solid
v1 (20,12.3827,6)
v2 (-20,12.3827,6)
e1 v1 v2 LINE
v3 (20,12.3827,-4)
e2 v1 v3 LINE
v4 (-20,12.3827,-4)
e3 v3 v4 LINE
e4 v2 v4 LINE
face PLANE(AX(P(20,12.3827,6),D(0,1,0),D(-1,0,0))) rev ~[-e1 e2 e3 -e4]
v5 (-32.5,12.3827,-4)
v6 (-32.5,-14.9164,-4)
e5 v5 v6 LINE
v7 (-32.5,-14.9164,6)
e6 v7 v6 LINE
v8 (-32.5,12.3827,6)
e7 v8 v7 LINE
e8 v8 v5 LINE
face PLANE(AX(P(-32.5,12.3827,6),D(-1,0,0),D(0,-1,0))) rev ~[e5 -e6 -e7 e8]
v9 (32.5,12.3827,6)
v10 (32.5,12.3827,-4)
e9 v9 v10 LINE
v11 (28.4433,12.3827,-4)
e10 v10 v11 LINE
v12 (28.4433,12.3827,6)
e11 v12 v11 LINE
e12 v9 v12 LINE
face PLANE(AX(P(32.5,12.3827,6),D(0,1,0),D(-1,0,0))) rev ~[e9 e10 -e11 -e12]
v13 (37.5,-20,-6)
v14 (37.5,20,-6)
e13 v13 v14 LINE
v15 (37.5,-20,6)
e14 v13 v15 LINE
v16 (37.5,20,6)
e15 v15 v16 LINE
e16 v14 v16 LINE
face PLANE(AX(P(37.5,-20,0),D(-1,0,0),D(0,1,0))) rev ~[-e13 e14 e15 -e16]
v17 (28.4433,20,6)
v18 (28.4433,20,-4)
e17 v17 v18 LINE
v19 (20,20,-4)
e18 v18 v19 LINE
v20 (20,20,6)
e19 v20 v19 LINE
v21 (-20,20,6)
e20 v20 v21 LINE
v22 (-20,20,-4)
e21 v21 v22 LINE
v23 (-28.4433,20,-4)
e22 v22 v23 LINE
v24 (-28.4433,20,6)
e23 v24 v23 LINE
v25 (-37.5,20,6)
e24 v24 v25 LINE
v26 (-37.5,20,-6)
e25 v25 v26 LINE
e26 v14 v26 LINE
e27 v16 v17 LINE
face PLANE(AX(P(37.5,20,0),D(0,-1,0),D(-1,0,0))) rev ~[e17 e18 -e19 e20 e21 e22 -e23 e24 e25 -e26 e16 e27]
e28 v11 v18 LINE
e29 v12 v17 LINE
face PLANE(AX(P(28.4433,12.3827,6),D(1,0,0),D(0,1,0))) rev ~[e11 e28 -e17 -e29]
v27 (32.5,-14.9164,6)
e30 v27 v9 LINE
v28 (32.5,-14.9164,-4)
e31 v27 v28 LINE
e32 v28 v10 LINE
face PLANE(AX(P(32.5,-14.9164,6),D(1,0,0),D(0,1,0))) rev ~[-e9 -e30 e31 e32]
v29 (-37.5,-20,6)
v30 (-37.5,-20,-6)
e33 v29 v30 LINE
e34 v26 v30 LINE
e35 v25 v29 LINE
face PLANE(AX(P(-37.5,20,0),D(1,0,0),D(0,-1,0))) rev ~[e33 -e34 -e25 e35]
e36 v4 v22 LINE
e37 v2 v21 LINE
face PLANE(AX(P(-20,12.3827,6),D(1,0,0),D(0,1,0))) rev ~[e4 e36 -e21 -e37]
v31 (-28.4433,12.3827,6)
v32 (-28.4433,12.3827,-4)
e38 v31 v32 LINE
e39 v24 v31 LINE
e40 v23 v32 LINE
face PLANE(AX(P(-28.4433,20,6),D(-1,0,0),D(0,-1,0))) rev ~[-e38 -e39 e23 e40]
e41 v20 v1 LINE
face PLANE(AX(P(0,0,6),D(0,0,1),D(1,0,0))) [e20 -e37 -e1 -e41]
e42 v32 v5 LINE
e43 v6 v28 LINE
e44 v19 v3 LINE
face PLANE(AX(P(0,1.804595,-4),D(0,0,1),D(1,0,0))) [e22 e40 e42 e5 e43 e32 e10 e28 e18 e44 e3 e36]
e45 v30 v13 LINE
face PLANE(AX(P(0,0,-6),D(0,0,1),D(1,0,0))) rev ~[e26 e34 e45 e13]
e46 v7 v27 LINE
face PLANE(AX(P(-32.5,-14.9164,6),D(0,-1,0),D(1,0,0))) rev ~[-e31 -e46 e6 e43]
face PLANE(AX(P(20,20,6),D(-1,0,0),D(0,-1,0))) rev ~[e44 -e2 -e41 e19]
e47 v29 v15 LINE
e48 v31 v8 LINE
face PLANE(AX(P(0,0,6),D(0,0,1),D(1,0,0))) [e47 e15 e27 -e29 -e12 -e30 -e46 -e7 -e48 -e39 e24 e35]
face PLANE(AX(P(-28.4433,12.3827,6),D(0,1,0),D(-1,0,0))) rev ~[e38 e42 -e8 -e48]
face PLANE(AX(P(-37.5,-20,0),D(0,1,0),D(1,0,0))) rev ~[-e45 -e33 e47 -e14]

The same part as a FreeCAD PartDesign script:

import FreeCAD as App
import Part
import Sketcher

V = App.Vector


def add_polygon(sketch, points):
    """Adds a closed chain of lines whose ends are joined by coincident constraints."""
    first, n = sketch.GeometryCount, len(points)
    for a, b in zip(points, points[1:] + points[:1]):
        sketch.addGeometry(Part.LineSegment(App.Vector(*a, 0), App.Vector(*b, 0)), False)
    for i in range(n):
        sketch.addConstraint(Sketcher.Constraint("Coincident", first + i, 2, first + (i + 1) % n, 1))

doc = App.newDocument("Part")
body = doc.addObject("PartDesign::Body", "Body")

sketch1 = body.newObject("Sketcher::SketchObject", "Sketch")
sketch1.AttachmentSupport = (doc.getObject("XY_Plane"), [""])
sketch1.MapMode = "FlatFace"
add_polygon(sketch1, [(-38, 20), (-38, -20), (38, -20), (38, 20)])
sketch1.addConstraint([
    Sketcher.Constraint("Vertical", 0),
    Sketcher.Constraint("Horizontal", 1),
    Sketcher.Constraint("Vertical", 2),
    Sketcher.Constraint("Horizontal", 3),
    Sketcher.Constraint("Symmetric", 0, 2, 2, 2, -1, 1),
    Sketcher.Constraint("DistanceX", 0, 2, -1, 1, 37.5),
    Sketcher.Constraint("DistanceY", 0, 2, 0, 1, 40.0),
])
pad1 = body.newObject("PartDesign::Pad", "Pad")
pad1.Profile = sketch1
pad1.Length = 12
pad1.Midplane = True

sketch2 = body.newObject("Sketcher::SketchObject", "Sketch001")
sketch2.AttachmentSupport = (doc.getObject("XY_Plane"), [""])
sketch2.MapMode = "FlatFace"
sketch2.AttachmentOffset = App.Placement(V(0, 0, 6), App.Rotation())
add_polygon(sketch2, [(-28.4, 12.4), (-32.5, 12.4), (-32.5, -14.9), (32.5, -14.9), (32.5, 12.4), (28.4, 12.4), (28.4, 20), (20, 20), (20, 12.4), (-20, 12.4), (-20, 20), (-28.4, 20)])
sketch2.addConstraint([
    Sketcher.Constraint("Horizontal", 0),
    Sketcher.Constraint("Vertical", 1),
    Sketcher.Constraint("Horizontal", 2),
    Sketcher.Constraint("Vertical", 3),
    Sketcher.Constraint("Horizontal", 4),
    Sketcher.Constraint("Vertical", 5),
    Sketcher.Constraint("Horizontal", 6),
    Sketcher.Constraint("Vertical", 7),
    Sketcher.Constraint("Horizontal", 8),
    Sketcher.Constraint("Vertical", 9),
    Sketcher.Constraint("Horizontal", 10),
    Sketcher.Constraint("Vertical", 11),
    Sketcher.Constraint("Symmetric", 0, 2, 3, 2, -2),
    Sketcher.Constraint("Symmetric", 6, 2, 9, 2, -2),
    Sketcher.Constraint("Horizontal", 4, 2, 7, 2),
    Sketcher.Constraint("Equal", 0, 4),
    Sketcher.Constraint("DistanceY", -1, 1, 5, 2, 20.0),
    Sketcher.Constraint("DistanceX", -1, 1, 6, 2, 20.0),
    Sketcher.Constraint("DistanceX", 2, 1, 2, 2, 65.0),
    Sketcher.Constraint("DistanceY", 1, 2, 1, 1, 27.299),
    Sketcher.Constraint("DistanceX", 0, 2, 0, 1, 4.0567),
    Sketcher.Constraint("DistanceY", 5, 1, 5, 2, 7.6173),
])
pocket1 = body.newObject("PartDesign::Pocket", "Pocket")
pocket1.Profile = sketch2
pocket1.Length = 10

doc.recompute()
